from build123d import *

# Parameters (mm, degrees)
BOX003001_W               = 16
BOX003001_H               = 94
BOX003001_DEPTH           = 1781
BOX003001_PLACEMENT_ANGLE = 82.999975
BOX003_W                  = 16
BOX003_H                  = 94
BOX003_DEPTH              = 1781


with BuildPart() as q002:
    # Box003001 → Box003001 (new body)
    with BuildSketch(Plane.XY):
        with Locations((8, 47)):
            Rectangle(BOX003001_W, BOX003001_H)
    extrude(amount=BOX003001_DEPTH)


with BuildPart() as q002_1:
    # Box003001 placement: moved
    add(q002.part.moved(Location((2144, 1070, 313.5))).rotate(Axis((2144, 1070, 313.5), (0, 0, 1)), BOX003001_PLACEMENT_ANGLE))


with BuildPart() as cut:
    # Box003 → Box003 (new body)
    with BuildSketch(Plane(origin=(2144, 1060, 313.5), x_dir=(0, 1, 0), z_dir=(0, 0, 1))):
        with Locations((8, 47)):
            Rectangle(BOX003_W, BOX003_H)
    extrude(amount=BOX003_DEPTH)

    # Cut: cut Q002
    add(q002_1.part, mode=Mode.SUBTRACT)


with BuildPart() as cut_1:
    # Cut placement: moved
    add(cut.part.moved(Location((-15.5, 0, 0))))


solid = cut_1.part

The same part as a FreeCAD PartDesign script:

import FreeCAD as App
import Part
import Sketcher

V = App.Vector
Q = App.Units.Quantity

doc = App.newDocument("Part")
body = doc.addObject("PartDesign::Body", "Body")

# Sketch on XY plane
sketch1 = body.newObject("Sketcher::SketchObject", "Sketch")
sketch1.AttachmentSupport = (doc.getObject("XY_Plane"), [""])
sketch1.MapMode = "FlatFace"
sketch1.addGeometry([
    Part.LineSegment(V(0, 94, 0), V(0, 0, 0)),
    Part.LineSegment(V(0, 0, 0), V(16, 0, 0)),
    Part.LineSegment(V(16, 0, 0), V(16, 94, 0)),
    Part.LineSegment(V(16, 94, 0), V(0, 94, 0)),
], False)
sketch1.addConstraint([
    Sketcher.Constraint("Coincident", 0, 2, 1, 1),
    Sketcher.Constraint("Coincident", 1, 2, 2, 1),
    Sketcher.Constraint("Coincident", 2, 2, 3, 1),
    Sketcher.Constraint("Coincident", 3, 2, 0, 1),
    Sketcher.Constraint("Vertical", 0),
    Sketcher.Constraint("Horizontal", 1),
    Sketcher.Constraint("Vertical", 2),
    Sketcher.Constraint("Horizontal", 3),
    Sketcher.Constraint("Coincident", 0, 2, -1, 1),
    Sketcher.Constraint("DistanceX", 1, 1, 1, 2, Q("16 mm")),
    Sketcher.Constraint("DistanceY", 0, 2, 0, 1, Q("94 mm")),
])
pad1 = body.newObject("PartDesign::Pad", "Pad")
pad1.Profile = sketch1
pad1.Length = 1781
body2 = doc.addObject("PartDesign::Body", "Body001")
doc.recompute()

body.Placement = App.Placement(V(2144, 1070, 313.5), App.Rotation(V(0, 0, 1), 82.999975))
boolean = body2.newObject("PartDesign::Boolean", "Boolean")
boolean.Type = "Fuse"
boolean.addObjects([body])
body3 = doc.addObject("PartDesign::Body", "Body002")

# Sketch on XY plane
sketch2 = body3.newObject("Sketcher::SketchObject", "Sketch001")
sketch2.AttachmentSupport = (doc.getObject("XY_Plane002"), [""])
sketch2.MapMode = "FlatFace"
sketch2.AttachmentOffset = App.Placement(V(0, 0, 313.5), App.Rotation())
sketch2.addGeometry([
    Part.LineSegment(V(2050, 1060, 0), V(2144, 1060, 0)),
    Part.LineSegment(V(2144, 1060, 0), V(2144, 1076, 0)),
    Part.LineSegment(V(2144, 1076, 0), V(2050, 1076, 0)),
    Part.LineSegment(V(2050, 1076, 0), V(2050, 1060, 0)),
], False)
sketch2.addConstraint([
    Sketcher.Constraint("Coincident", 0, 2, 1, 1),
    Sketcher.Constraint("Coincident", 1, 2, 2, 1),
    Sketcher.Constraint("Coincident", 2, 2, 3, 1),
    Sketcher.Constraint("Coincident", 3, 2, 0, 1),
    Sketcher.Constraint("Horizontal", 0),
    Sketcher.Constraint("Vertical", 1),
    Sketcher.Constraint("Horizontal", 2),
    Sketcher.Constraint("Vertical", 3),
    Sketcher.Constraint("DistanceX", 0, 1, 0, 2, Q("94 mm")),
    Sketcher.Constraint("DistanceY", 1, 1, 1, 2, Q("16 mm")),
    Sketcher.Constraint("DistanceX", -1, 1, 0, 2, Q("2144 mm")),
    Sketcher.Constraint("DistanceY", -1, 1, 0, 2, Q("1060 mm")),
])
pad2 = body3.newObject("PartDesign::Pad", "Pad001")
pad2.Profile = sketch2
pad2.Length = 1781
doc.recompute()

boolean2 = body3.newObject("PartDesign::Boolean", "Boolean001")
boolean2.Type = "Cut"
boolean2.addObjects([body2])
body4 = doc.addObject("PartDesign::Body", "Body003")
doc.recompute()

body3.Placement = App.Placement(V(-15.5, 0, 0), App.Rotation(V(0, 0, 1), 0))
boolean3 = body4.newObject("PartDesign::Boolean", "Boolean002")
boolean3.Type = "Fuse"
boolean3.addObjects([body3])

doc.recompute()
